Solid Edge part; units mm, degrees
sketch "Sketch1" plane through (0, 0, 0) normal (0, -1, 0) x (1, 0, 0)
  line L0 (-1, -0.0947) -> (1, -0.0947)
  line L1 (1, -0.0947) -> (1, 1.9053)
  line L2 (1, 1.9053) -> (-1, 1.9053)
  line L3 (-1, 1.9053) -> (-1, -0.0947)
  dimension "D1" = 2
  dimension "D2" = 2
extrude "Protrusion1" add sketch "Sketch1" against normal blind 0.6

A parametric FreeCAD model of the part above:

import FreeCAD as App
import Part
import Sketcher
from FreeCAD import Vector


def add_polygon(sketch, points):
    """Adds a closed chain of lines whose ends are joined by coincident constraints."""
    first, n = sketch.GeometryCount, len(points)
    for a, b in zip(points, points[1:] + points[:1]):
        sketch.addGeometry(Part.LineSegment(App.Vector(*a, 0), App.Vector(*b, 0)), False)
    for i in range(n):
        sketch.addConstraint(Sketcher.Constraint("Coincident", first + i, 2, first + (i + 1) % n, 1))

doc = App.newDocument("Part")
body = doc.addObject("PartDesign::Body", "Body")

sketch1 = body.newObject("Sketcher::SketchObject", "Sketch")
sketch1.AttachmentSupport = (doc.getObject("XZ_Plane"), [""])
sketch1.MapMode = "FlatFace"
add_polygon(sketch1, [(-1, 1.9053), (-1, -0.0947), (1, -0.0947), (1, 1.9053)])
sketch1.addConstraint([
    Sketcher.Constraint("Vertical", 0),
    Sketcher.Constraint("Horizontal", 1),
    Sketcher.Constraint("Vertical", 2),
    Sketcher.Constraint("Horizontal", 3),
    Sketcher.Constraint("Equal", 3, 0),
    Sketcher.Constraint("DistanceX", 0, 2, -1, 1, 1.0),
    Sketcher.Constraint("DistanceX", -1, 1, 1, 2, 1.0),
    Sketcher.Constraint("DistanceY", 0, 2, -1, 1, 0.0947),
])
pad1 = body.newObject("PartDesign::Pad", "Pad")
pad1.Profile = sketch1
pad1.Length = 0.6
pad1.Reversed = True

doc.recompute()
